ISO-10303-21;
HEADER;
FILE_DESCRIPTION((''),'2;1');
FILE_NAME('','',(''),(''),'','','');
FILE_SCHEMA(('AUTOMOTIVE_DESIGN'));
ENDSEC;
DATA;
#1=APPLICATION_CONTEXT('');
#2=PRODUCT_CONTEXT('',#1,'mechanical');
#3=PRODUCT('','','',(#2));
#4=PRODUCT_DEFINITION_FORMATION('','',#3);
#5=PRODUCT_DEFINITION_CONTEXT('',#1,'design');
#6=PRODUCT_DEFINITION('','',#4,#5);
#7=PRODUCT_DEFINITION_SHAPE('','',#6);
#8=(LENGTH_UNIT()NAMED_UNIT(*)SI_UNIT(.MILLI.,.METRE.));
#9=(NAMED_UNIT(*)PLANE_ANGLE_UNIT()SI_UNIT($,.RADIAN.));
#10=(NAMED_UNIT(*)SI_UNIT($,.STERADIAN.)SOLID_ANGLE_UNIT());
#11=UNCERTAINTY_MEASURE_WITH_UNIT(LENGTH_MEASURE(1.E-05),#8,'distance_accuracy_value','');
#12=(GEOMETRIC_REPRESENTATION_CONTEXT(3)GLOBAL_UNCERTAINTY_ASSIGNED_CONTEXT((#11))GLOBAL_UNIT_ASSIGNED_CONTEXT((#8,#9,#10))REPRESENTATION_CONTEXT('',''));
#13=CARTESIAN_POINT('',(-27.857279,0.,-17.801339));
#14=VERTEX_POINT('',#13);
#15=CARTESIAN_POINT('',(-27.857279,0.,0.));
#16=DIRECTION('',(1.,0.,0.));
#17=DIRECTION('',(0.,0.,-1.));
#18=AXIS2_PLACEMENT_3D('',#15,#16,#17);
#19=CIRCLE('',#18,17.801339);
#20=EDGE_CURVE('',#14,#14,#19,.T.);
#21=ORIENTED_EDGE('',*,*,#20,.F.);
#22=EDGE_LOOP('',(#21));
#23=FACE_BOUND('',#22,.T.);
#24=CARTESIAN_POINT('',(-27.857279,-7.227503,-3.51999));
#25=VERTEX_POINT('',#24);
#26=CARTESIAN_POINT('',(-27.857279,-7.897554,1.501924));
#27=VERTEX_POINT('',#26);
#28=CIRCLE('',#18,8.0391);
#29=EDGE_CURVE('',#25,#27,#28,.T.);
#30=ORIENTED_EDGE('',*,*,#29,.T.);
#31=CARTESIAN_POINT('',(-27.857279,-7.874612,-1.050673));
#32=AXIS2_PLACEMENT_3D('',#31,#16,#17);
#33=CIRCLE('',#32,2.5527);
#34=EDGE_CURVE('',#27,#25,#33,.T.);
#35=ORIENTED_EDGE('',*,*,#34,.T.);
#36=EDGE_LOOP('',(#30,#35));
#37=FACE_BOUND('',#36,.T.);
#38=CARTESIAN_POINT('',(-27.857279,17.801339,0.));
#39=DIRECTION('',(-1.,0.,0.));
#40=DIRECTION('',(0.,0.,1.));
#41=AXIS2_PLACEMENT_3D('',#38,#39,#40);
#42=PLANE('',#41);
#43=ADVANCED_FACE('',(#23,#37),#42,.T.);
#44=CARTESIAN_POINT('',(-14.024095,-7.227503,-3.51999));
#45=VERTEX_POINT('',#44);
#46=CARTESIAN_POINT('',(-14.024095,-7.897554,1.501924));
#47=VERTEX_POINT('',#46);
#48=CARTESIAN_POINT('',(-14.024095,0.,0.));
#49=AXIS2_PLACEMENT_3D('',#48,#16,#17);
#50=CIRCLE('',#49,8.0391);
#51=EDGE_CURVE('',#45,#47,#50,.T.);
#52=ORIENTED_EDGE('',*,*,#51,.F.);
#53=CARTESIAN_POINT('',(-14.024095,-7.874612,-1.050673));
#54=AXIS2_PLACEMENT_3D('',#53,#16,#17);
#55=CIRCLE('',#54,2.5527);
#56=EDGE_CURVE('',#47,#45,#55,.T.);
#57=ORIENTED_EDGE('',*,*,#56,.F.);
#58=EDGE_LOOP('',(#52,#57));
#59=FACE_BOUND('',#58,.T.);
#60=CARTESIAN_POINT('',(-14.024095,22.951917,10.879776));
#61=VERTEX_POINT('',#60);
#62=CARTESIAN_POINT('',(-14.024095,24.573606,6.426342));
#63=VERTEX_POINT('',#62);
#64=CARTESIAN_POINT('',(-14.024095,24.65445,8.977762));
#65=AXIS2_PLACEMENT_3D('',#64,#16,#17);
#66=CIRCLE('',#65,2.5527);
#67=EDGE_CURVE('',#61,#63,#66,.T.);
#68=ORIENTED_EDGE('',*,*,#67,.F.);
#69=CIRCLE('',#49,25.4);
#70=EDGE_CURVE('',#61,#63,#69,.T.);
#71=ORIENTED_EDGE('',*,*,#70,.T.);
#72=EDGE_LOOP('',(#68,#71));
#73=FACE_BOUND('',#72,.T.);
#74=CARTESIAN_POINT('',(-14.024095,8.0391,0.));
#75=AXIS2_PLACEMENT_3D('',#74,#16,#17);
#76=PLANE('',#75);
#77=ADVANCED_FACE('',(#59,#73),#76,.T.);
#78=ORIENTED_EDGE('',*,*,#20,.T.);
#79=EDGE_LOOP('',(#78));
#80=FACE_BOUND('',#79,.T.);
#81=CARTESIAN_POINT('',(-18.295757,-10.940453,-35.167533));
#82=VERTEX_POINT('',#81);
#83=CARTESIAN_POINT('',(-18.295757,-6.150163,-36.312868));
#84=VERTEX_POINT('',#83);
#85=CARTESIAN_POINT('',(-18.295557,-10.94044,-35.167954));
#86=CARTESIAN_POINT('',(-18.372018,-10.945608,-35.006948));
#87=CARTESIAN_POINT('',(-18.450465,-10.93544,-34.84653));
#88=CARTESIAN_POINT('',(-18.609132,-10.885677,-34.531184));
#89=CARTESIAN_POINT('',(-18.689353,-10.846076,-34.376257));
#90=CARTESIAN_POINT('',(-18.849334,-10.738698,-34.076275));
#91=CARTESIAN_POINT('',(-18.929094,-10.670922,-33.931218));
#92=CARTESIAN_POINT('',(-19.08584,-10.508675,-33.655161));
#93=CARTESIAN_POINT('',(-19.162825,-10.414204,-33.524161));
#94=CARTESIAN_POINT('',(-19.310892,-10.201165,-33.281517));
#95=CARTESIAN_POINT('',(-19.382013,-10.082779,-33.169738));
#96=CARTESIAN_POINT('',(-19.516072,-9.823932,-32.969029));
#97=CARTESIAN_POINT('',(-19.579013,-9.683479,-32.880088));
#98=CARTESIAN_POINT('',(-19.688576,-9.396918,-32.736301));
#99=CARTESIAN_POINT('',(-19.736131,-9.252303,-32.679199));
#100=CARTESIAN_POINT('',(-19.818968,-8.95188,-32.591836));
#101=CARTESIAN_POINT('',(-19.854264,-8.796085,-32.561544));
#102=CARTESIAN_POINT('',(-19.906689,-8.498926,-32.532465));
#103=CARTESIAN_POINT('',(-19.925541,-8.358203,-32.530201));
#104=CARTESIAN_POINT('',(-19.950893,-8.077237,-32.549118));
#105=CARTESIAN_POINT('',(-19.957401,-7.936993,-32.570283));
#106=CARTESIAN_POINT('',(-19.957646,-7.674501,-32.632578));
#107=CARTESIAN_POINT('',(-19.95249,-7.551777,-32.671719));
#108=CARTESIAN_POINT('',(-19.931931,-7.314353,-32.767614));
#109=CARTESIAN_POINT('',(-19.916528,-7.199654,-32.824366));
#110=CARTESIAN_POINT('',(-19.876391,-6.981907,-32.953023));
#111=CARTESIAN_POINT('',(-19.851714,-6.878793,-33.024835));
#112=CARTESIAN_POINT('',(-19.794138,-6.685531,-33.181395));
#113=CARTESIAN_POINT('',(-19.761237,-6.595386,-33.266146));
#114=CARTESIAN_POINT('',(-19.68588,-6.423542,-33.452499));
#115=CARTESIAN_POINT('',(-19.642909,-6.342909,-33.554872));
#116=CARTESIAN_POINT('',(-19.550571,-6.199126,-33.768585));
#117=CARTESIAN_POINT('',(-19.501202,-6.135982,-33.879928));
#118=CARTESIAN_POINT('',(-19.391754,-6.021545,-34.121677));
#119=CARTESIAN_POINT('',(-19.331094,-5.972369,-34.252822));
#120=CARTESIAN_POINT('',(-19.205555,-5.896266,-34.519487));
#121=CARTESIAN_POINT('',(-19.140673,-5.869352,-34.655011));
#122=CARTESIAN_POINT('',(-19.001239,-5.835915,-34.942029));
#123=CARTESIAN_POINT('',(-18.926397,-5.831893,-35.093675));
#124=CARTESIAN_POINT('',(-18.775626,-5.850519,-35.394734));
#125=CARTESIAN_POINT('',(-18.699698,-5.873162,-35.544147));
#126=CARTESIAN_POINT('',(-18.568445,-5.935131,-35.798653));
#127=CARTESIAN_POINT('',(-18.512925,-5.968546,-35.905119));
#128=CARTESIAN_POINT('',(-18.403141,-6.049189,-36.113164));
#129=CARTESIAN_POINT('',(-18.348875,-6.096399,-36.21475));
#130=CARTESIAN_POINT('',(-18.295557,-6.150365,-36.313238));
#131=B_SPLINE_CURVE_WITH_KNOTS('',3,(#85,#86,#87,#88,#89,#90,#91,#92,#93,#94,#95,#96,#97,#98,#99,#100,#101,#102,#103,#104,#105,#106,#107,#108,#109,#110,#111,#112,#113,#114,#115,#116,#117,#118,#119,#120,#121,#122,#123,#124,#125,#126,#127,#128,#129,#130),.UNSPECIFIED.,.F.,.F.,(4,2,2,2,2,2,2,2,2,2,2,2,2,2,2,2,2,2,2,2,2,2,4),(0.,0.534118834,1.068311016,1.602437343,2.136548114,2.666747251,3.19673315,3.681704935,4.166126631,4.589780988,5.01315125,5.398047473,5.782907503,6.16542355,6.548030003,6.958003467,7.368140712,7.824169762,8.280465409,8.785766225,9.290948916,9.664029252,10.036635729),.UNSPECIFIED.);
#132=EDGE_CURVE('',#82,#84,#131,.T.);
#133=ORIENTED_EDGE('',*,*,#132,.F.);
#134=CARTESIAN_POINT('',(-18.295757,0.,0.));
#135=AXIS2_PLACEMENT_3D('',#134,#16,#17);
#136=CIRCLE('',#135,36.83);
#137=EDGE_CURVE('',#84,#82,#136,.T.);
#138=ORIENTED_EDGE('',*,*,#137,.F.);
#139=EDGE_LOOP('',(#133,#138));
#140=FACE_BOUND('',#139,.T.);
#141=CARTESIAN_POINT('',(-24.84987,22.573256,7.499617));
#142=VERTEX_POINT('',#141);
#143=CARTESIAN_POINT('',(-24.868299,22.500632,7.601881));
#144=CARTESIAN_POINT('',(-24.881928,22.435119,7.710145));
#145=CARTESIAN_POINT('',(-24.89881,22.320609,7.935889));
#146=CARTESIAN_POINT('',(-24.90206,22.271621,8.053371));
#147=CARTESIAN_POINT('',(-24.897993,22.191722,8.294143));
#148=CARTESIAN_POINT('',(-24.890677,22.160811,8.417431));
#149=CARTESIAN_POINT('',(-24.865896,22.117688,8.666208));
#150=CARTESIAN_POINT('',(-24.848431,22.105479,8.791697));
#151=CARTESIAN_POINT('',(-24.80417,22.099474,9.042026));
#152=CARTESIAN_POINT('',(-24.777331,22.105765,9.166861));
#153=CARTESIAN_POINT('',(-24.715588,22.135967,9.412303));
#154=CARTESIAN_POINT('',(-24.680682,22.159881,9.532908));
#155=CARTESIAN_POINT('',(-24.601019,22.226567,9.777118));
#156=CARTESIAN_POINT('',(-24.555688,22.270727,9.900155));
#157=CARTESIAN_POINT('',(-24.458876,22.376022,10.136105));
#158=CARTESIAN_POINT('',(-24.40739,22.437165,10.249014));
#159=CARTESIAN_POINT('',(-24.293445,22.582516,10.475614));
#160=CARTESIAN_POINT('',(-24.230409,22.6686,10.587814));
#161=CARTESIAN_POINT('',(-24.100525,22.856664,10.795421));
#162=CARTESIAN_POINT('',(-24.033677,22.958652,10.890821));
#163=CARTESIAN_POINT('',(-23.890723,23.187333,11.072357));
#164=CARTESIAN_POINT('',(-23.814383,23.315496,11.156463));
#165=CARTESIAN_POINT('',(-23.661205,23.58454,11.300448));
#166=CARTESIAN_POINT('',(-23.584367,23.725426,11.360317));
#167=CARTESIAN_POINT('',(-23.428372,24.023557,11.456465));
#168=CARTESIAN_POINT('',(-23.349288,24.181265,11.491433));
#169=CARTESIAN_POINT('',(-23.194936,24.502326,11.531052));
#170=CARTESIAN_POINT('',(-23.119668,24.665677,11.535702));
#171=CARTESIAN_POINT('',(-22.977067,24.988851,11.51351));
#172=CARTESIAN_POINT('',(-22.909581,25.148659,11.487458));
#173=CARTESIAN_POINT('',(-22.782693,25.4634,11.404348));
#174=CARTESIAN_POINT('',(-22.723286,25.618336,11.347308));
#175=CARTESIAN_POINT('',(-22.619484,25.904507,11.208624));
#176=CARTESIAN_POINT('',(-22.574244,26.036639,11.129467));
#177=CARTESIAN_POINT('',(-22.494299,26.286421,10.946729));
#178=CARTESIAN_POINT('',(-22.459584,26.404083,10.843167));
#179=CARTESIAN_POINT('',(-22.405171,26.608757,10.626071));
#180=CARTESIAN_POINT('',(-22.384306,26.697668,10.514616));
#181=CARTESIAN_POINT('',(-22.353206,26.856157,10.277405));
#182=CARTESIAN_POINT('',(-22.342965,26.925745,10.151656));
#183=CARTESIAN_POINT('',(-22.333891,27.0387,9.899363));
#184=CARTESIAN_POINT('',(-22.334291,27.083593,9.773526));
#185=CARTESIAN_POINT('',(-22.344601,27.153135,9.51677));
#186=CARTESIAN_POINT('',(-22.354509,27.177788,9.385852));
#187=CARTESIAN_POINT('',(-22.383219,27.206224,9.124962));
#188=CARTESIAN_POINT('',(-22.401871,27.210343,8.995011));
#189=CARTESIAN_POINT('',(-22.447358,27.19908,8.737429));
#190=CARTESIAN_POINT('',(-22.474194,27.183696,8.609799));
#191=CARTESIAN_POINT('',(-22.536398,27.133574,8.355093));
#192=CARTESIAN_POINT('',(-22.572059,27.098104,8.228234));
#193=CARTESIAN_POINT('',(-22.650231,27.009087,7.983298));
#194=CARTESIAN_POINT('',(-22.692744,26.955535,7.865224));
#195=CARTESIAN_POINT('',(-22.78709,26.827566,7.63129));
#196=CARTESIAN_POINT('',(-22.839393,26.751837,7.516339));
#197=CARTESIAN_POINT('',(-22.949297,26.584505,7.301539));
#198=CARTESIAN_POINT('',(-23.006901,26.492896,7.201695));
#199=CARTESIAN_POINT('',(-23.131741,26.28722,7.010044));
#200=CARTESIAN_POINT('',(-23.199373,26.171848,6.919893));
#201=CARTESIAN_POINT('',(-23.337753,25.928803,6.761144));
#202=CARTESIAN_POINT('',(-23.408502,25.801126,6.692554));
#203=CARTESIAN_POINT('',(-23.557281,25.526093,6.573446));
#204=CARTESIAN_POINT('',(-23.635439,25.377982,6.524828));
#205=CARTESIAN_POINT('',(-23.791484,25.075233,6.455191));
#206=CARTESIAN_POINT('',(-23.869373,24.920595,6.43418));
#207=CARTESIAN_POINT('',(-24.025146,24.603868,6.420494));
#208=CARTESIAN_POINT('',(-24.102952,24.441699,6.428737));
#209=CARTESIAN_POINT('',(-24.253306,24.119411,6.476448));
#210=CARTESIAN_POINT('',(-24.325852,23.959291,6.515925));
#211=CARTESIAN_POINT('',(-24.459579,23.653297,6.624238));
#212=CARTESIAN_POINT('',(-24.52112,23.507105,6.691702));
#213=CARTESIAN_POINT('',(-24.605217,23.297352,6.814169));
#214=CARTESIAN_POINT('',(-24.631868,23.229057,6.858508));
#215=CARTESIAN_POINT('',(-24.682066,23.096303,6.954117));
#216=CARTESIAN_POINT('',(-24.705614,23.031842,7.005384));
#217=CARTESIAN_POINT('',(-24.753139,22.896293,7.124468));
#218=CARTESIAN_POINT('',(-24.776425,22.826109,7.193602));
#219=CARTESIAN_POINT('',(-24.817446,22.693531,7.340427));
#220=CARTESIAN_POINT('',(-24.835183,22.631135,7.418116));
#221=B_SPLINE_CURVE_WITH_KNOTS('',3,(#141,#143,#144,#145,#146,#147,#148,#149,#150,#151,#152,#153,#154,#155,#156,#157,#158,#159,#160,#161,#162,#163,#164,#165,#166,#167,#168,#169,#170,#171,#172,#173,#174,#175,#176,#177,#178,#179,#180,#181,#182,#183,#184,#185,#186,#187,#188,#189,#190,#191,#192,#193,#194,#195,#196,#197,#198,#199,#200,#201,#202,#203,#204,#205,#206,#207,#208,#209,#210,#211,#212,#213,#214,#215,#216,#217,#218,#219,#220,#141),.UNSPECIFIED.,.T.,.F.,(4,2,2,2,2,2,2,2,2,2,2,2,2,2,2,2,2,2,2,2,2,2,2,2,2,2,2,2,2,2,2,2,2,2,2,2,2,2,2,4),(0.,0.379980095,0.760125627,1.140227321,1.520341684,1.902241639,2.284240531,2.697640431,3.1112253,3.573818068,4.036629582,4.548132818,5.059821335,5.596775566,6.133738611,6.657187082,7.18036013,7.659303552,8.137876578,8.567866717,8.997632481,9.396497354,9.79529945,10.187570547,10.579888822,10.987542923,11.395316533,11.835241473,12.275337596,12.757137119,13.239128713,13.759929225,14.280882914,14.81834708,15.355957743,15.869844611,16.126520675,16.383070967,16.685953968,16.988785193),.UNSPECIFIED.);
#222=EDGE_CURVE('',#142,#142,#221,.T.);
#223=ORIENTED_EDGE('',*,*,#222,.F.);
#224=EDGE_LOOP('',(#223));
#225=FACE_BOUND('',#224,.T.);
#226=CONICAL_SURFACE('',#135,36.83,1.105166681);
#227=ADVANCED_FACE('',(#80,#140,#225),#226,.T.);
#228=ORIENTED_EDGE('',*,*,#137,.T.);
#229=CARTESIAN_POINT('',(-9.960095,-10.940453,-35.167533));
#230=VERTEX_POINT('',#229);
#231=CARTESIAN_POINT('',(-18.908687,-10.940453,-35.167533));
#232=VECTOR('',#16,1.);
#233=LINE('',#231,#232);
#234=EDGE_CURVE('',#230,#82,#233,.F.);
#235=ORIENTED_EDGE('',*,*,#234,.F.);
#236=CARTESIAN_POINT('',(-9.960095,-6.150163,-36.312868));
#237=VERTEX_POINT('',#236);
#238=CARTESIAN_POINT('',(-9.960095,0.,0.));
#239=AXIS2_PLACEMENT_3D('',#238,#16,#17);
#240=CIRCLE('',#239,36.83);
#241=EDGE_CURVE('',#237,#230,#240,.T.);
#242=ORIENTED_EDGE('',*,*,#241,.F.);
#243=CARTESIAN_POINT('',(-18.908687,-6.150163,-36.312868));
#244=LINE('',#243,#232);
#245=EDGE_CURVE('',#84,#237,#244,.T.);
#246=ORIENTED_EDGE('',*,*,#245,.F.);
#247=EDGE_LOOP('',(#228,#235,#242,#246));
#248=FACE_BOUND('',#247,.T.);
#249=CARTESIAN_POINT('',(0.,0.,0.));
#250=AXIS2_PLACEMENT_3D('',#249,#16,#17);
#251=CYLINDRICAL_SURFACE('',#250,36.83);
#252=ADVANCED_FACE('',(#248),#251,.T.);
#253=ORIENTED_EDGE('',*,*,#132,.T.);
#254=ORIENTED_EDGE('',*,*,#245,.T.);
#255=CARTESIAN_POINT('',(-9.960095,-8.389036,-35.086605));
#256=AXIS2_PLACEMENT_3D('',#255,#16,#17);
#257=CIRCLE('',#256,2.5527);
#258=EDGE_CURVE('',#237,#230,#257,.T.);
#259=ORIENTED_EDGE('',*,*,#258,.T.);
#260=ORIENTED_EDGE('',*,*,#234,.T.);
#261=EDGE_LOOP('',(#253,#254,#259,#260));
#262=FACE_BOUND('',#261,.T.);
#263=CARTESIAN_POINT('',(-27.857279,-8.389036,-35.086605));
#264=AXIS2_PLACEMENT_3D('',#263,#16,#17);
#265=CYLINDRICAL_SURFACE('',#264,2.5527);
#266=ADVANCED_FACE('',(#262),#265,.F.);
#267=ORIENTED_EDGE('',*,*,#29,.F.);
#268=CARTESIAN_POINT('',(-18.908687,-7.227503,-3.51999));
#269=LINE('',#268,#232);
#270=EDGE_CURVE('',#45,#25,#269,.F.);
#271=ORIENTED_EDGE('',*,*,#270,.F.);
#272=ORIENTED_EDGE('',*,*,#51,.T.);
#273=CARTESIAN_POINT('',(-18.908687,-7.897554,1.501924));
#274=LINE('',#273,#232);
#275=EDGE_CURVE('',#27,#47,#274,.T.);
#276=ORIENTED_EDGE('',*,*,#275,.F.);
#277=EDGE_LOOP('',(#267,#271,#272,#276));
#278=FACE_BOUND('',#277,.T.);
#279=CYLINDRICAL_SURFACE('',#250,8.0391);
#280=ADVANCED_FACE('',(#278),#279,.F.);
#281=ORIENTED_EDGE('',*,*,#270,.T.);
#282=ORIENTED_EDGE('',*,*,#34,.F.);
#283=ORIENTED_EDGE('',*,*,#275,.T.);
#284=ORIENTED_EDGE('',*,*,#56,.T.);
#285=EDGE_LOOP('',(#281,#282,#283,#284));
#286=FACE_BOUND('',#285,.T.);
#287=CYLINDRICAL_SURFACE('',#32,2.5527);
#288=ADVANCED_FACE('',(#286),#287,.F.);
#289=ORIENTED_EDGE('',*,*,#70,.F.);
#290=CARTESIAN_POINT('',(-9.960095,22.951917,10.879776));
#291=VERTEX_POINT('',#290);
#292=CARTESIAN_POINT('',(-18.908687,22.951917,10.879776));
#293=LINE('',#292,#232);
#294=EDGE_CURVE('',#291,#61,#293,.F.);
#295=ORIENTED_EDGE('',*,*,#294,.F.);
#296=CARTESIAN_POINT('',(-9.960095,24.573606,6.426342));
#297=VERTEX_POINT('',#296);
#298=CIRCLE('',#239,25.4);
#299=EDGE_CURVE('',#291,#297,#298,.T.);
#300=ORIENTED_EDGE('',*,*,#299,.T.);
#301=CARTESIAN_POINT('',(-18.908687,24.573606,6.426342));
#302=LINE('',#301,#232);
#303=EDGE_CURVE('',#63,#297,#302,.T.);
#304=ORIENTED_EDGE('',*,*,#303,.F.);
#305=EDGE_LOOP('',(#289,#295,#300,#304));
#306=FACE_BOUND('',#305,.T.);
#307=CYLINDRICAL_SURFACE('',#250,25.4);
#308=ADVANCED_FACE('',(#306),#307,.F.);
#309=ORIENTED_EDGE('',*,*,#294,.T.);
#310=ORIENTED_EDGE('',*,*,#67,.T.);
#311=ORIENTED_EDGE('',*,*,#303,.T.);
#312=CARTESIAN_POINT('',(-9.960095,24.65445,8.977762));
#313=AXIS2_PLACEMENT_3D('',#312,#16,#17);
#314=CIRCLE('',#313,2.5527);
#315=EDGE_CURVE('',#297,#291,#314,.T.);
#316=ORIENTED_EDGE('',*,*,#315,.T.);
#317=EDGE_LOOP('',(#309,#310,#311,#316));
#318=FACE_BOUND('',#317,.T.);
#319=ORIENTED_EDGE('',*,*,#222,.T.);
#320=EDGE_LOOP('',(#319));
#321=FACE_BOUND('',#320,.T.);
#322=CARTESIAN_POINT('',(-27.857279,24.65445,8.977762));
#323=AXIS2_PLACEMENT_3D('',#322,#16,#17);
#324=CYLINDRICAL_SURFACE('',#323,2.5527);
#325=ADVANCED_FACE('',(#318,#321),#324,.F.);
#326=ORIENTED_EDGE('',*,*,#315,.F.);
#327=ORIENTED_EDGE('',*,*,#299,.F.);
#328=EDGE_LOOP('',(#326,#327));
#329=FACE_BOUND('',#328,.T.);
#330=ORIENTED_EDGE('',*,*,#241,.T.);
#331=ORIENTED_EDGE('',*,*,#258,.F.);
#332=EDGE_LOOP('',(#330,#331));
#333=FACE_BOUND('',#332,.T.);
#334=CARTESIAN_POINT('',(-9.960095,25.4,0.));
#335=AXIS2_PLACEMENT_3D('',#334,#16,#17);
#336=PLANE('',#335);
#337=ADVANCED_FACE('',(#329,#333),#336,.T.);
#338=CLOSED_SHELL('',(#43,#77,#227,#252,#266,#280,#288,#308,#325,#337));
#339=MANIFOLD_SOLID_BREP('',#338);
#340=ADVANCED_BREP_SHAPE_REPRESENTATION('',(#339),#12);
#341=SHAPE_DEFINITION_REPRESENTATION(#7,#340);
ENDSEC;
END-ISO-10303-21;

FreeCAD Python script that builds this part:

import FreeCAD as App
import Part
import Sketcher
Q = App.Units.Quantity

doc = App.newDocument("Part")
body = doc.addObject("PartDesign::Body", "Body")

sketch1 = body.newObject("Sketcher::SketchObject", "Sketch")
sketch1.AttachmentSupport = (doc.getObject("XY_Plane"), [""])
sketch1.MapMode = "FlatFace"
sketch1.addGeometry([
    Part.LineSegment(App.Vector(-27.9, 8, 0), App.Vector(-14, 8, 0)),
    Part.LineSegment(App.Vector(-14, 8, 0), App.Vector(-14, 25.4, 0)),
    Part.LineSegment(App.Vector(-14, 25.4, 0), App.Vector(-10, 25.4, 0)),
    Part.LineSegment(App.Vector(-10, 25.4, 0), App.Vector(-10, 36.8, 0)),
    Part.LineSegment(App.Vector(-10, 36.8, 0), App.Vector(-18.3, 36.8, 0)),
    Part.LineSegment(App.Vector(-18.3, 36.8, 0), App.Vector(-27.9, 17.8, 0)),
    Part.LineSegment(App.Vector(-27.9, 17.8, 0), App.Vector(-27.9, 8, 0)),
], False)
sketch1.addConstraint([
    Sketcher.Constraint("Coincident", 0, 2, 1, 1),
    Sketcher.Constraint("Coincident", 1, 2, 2, 1),
    Sketcher.Constraint("Coincident", 2, 2, 3, 1),
    Sketcher.Constraint("Coincident", 3, 2, 4, 1),
    Sketcher.Constraint("Coincident", 4, 2, 5, 1),
    Sketcher.Constraint("Coincident", 5, 2, 6, 1),
    Sketcher.Constraint("Coincident", 6, 2, 0, 1),
    Sketcher.Constraint("Horizontal", 0),
    Sketcher.Constraint("Vertical", 1),
    Sketcher.Constraint("Horizontal", 2),
    Sketcher.Constraint("Vertical", 3),
    Sketcher.Constraint("Horizontal", 4),
    Sketcher.Constraint("Vertical", 6),
    Sketcher.Constraint("DistanceY", -1, 1, 1, 2, Q("1 in")),
    Sketcher.Constraint("DistanceX", 2, 1, 2, 2, Q("0.16 in")),
    Sketcher.Constraint("DistanceY", 3, 1, 3, 2, Q("0.45 in")),
    Sketcher.Constraint("DistanceY", 1, 1, 1, 2, Q("0.6835 in")),
    Sketcher.Constraint("DistanceY", 6, 2, 6, 1, 9.762239),
    Sketcher.Constraint("DistanceX", 0, 1, 0, 2, 13.833184),
    Sketcher.Constraint("DistanceX", 4, 2, 4, 1, 8.335662),
    Sketcher.Constraint("DistanceX", 5, 2, -1, 1, 27.857279),
])
revolution = body.newObject("PartDesign::Revolution", "Revolution")
revolution.Profile = sketch1
revolution.ReferenceAxis = (sketch1, ["H_Axis"])
revolution.Angle = 360

sketch2 = body.newObject("Sketcher::SketchObject", "Sketch001")
sketch2.AttachmentSupport = (doc.getObject("YZ_Plane"), [""])
sketch2.MapMode = "FlatFace"
sketch2.AttachmentOffset = App.Placement(App.Vector(0, 0, -9.960095), App.Rotation())
sketch2.addGeometry([
    Part.Circle(App.Vector(-8.4, -35.1, 0), App.Vector(0, 0, 1), 2.6),
    Part.Circle(App.Vector(-7.9, -1.1, 0), App.Vector(0, 0, 1), 2.6),
    Part.Circle(App.Vector(44.2, -18.9, 0), App.Vector(0, 0, 1), 2.6),
    Part.Circle(App.Vector(23.8, -46.1, 0), App.Vector(0, 0, 1), 2.6),
    Part.Circle(App.Vector(24.7, 9, 0), App.Vector(0, 0, 1), 2.6),
], False)
sketch2.addConstraint([
    Sketcher.Constraint("Equal", 0, 1),
    Sketcher.Constraint("Equal", 1, 2),
    Sketcher.Constraint("Equal", 2, 3),
    Sketcher.Constraint("Equal", 3, 4),
    Sketcher.Constraint("Diameter", 0, Q("0.201 in")),
    Sketcher.Constraint("DistanceX", 1, 3, 2, 3, 52.118702),
    Sketcher.Constraint("DistanceX", 1, 3, -1, 1, 7.874612),
    Sketcher.Constraint("DistanceX", -1, 1, 4, 3, 24.65445),
    Sketcher.Constraint("DistanceY", -1, 1, 4, 3, 8.977762),
    Sketcher.Constraint("DistanceX", 0, 3, 3, 3, 32.211129),
    Sketcher.Constraint("DistanceY", 3, 3, 0, 3, 11.006929),
    Sketcher.Constraint("DistanceY", 3, 3, 1, 3, 45.042861),
    Sketcher.Constraint("DistanceY", 2, 3, 4, 3, 27.838019),
    Sketcher.Constraint("DistanceX", 0, 3, -1, 1, 8.389036),
    Sketcher.Constraint("DistanceY", 0, 3, -1, 1, 35.086605),
])
pocket1 = body.newObject("PartDesign::Pocket", "Pocket")
pocket1.Profile = sketch2
pocket1.Type = "ThroughAll"

doc.recompute()
